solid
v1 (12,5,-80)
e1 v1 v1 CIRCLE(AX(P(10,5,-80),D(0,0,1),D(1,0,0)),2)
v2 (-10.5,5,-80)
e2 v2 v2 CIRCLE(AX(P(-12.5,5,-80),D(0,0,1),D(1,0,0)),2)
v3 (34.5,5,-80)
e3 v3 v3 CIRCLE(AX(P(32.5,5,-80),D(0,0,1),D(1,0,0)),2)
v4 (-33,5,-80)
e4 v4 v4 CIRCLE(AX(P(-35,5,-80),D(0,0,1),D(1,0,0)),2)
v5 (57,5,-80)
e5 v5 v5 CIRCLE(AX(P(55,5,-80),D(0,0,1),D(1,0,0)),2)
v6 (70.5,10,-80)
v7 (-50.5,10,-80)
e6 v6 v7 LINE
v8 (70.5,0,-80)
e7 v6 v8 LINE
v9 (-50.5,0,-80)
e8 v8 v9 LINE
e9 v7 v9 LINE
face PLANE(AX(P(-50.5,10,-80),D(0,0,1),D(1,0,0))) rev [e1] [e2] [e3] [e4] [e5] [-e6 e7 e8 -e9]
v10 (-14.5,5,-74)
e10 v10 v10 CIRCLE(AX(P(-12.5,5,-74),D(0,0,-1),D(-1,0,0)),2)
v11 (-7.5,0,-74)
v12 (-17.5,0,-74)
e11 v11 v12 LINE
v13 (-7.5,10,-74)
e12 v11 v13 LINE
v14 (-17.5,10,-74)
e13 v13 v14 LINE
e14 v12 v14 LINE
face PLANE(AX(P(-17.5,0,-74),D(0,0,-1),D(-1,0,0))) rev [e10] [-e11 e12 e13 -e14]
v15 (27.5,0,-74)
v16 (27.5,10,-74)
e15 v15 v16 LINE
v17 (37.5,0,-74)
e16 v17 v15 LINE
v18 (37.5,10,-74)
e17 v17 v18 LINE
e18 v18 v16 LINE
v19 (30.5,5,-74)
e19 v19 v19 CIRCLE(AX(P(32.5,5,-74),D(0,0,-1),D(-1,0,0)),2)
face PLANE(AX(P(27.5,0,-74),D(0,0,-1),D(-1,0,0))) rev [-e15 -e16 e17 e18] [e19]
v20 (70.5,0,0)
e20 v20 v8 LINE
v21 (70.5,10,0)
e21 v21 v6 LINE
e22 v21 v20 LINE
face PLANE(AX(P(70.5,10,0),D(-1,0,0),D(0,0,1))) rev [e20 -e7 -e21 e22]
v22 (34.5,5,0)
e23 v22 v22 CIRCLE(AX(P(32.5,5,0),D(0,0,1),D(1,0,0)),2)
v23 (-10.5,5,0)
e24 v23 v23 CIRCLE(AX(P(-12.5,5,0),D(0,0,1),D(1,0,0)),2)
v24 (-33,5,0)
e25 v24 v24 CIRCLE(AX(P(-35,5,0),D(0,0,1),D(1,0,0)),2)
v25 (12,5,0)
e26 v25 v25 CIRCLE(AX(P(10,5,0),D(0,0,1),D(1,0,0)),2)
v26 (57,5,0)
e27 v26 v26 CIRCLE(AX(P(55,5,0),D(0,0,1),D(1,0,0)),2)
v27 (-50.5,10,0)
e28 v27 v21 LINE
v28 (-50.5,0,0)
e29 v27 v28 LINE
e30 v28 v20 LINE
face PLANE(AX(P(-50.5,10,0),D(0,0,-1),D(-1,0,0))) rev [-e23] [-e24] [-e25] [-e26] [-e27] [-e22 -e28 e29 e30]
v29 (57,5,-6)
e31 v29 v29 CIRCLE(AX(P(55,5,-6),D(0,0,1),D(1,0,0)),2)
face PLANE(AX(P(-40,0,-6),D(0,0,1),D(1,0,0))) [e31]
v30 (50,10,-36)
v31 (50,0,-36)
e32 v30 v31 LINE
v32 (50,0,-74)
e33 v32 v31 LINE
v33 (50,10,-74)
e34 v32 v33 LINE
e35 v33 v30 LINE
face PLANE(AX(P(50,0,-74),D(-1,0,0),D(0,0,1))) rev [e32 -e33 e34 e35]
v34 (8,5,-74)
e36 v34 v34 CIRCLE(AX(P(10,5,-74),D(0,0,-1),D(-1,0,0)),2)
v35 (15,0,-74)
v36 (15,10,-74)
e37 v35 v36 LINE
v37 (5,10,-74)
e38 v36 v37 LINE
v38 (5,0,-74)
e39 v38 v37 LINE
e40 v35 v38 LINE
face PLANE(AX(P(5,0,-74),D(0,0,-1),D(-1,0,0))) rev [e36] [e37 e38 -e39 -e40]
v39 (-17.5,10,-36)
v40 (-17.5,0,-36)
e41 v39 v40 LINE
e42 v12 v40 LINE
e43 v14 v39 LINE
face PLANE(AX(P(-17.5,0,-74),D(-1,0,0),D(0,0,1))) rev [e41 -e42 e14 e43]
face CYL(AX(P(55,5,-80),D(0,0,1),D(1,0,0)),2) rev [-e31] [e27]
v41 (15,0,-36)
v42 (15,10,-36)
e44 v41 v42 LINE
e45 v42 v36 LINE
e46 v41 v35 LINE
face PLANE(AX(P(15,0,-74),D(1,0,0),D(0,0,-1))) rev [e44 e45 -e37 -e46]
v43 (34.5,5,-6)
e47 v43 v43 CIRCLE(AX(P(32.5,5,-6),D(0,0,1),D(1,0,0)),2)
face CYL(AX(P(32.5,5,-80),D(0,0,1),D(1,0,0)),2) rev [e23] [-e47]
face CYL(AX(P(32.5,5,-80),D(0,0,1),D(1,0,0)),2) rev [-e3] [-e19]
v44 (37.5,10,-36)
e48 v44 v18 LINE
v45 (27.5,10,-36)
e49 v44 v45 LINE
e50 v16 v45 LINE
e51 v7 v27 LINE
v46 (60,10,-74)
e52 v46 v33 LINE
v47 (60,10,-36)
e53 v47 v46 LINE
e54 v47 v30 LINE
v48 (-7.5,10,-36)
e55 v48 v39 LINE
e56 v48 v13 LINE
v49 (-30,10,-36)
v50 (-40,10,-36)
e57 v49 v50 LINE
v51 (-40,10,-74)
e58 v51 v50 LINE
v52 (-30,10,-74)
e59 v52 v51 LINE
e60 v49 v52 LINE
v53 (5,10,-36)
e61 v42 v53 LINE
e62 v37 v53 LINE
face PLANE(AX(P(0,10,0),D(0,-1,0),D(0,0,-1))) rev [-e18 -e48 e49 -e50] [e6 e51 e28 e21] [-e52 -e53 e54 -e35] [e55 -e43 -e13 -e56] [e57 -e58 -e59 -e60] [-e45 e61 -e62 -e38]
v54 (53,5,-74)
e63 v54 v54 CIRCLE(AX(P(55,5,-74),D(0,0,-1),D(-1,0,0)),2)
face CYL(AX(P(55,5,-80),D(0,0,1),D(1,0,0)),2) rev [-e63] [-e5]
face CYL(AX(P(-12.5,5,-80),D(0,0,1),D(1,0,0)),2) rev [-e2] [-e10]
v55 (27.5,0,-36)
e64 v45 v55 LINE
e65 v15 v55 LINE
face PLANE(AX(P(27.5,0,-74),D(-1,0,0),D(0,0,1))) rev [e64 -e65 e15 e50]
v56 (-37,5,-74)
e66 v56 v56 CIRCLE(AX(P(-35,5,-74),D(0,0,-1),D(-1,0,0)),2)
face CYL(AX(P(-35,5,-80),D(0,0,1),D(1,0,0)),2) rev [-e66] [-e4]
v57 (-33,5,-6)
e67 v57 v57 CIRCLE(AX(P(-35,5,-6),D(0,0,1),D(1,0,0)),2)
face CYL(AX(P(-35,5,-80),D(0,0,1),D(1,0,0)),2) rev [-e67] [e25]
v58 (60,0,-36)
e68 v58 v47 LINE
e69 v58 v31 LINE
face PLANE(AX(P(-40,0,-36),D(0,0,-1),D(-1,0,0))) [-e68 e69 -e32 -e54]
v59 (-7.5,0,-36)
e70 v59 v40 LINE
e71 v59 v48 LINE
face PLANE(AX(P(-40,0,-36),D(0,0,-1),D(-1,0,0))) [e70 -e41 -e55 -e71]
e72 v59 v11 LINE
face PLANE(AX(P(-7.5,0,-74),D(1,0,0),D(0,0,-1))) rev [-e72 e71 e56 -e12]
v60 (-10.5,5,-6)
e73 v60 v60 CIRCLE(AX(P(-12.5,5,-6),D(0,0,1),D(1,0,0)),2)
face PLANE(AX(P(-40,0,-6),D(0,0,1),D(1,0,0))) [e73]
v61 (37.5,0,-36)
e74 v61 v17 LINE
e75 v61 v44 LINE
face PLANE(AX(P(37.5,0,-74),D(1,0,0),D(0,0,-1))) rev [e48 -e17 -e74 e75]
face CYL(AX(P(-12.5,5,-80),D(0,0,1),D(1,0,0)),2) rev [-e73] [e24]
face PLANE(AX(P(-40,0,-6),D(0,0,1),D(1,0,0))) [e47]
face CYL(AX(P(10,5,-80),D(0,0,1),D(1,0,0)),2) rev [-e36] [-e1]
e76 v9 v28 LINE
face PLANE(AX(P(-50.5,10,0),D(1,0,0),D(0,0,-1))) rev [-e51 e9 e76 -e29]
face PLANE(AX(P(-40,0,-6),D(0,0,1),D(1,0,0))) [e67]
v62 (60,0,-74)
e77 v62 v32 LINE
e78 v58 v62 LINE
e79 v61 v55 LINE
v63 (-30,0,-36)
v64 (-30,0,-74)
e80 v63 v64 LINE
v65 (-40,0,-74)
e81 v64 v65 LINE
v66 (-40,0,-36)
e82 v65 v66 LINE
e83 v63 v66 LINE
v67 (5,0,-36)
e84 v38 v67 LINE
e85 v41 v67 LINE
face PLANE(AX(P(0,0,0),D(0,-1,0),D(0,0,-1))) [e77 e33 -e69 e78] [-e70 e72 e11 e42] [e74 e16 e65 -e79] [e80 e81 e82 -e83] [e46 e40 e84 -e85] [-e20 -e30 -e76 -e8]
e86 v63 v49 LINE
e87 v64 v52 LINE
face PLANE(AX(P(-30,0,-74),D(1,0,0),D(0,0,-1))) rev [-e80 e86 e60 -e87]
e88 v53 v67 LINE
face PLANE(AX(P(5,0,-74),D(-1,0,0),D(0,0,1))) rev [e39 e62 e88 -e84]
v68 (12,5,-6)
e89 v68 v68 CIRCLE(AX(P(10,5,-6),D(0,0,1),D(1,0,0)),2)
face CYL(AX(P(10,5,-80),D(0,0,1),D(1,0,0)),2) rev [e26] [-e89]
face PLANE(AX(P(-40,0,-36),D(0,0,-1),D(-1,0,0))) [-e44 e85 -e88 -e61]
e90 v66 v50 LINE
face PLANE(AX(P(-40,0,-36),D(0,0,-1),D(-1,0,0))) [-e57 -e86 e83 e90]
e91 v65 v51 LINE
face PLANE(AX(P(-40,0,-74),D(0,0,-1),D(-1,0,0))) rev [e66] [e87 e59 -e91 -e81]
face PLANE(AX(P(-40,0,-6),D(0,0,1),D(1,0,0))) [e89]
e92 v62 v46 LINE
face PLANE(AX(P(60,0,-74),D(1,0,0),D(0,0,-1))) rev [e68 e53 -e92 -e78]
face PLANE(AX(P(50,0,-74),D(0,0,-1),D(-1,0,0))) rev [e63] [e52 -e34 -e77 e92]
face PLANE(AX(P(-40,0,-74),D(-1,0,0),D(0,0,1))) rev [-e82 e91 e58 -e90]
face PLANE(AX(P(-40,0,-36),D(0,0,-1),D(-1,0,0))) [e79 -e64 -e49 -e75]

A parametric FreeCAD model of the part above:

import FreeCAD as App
import Part
import Sketcher
from FreeCAD import Vector
Q = App.Units.Quantity


def add_polygon(sketch, points):
    """Adds a closed chain of lines whose ends are joined by coincident constraints."""
    first, n = sketch.GeometryCount, len(points)
    for a, b in zip(points, points[1:] + points[:1]):
        sketch.addGeometry(Part.LineSegment(App.Vector(*a, 0), App.Vector(*b, 0)), False)
    for i in range(n):
        sketch.addConstraint(Sketcher.Constraint("Coincident", first + i, 2, first + (i + 1) % n, 1))

doc = App.newDocument("Part")
params = doc.addObject("Spreadsheet::Sheet", "Params")
for row, (alias, value) in enumerate([
    ("sketch1_width", "121 mm"),
    ("sketch1_height", "80 mm"),
    ("pad1_length", "10 mm"),
    ("sketch2_width", "10 mm"),
    ("sketch2_height", "68 mm"),
    ("pocket1_length", "10 mm"),
    ("sketch3_diameter", "4 mm"),
    ("sketch4_width", "100 mm"),
    ("sketch4_height", "30 mm"),
    ("pad2_length", "10 mm"),
], start=1):
    params.set(f"A{row}", alias)
    params.set(f"B{row}", "=" + value)
    params.setAlias(f"B{row}", alias)

body = doc.addObject("PartDesign::Body", "Body")

sketch1 = body.newObject("Sketcher::SketchObject", "Sketch")
sketch1.AttachmentSupport = (doc.getObject("XZ_Plane"), [""])
sketch1.MapMode = "FlatFace"
add_polygon(sketch1, [(-50, -80), (-50, 0), (70, 0), (70, -80)])
sketch1.addConstraint([
    Sketcher.Constraint("Vertical", 0),
    Sketcher.Constraint("Horizontal", 1),
    Sketcher.Constraint("Vertical", 2),
    Sketcher.Constraint("Horizontal", 3),
    Sketcher.Constraint("PointOnObject", 0, 2, -1),
    Sketcher.Constraint("DistanceX", 1, 1, 1, 2, Q("121 mm")),
    Sketcher.Constraint("DistanceY", 0, 1, 0, 2, Q("80 mm")),
    Sketcher.Constraint("DistanceX", 0, 2, -1, 1, Q("50.5 mm")),
])
sketch1.setExpression("Constraints[9]", "Params.sketch1_width")
sketch1.setExpression("Constraints[10]", "Params.sketch1_height")
pad1 = body.newObject("PartDesign::Pad", "Pad")
pad1.Profile = sketch1
pad1.setExpression("Length", "Params.pad1_length")
pad1.Reversed = True

sketch2 = body.newObject("Sketcher::SketchObject", "Sketch001")
sketch2.AttachmentSupport = (doc.getObject("XZ_Plane"), [""])
sketch2.MapMode = "FlatFace"
sketch2.AttachmentOffset = App.Placement(Vector(0, 0, -10), App.Rotation())
add_polygon(sketch2, [(-40, -74), (-40, -6), (-30, -6), (-30, -74)])
add_polygon(sketch2, [(-18, -74), (-18, -6), (-8, -6), (-8, -74)])
add_polygon(sketch2, [(5, -74), (5, -6), (15, -6), (15, -74)])
add_polygon(sketch2, [(28, -74), (28, -6), (38, -6), (38, -74)])
add_polygon(sketch2, [(50, -74), (50, -6), (60, -6), (60, -74)])
sketch2.addConstraint([
    Sketcher.Constraint("Vertical", 0),
    Sketcher.Constraint("Horizontal", 1),
    Sketcher.Constraint("Vertical", 2),
    Sketcher.Constraint("Horizontal", 3),
    Sketcher.Constraint("Vertical", 4),
    Sketcher.Constraint("Horizontal", 5),
    Sketcher.Constraint("Vertical", 6),
    Sketcher.Constraint("Horizontal", 7),
    Sketcher.Constraint("Vertical", 8),
    Sketcher.Constraint("Horizontal", 9),
    Sketcher.Constraint("Vertical", 10),
    Sketcher.Constraint("Horizontal", 11),
    Sketcher.Constraint("Vertical", 12),
    Sketcher.Constraint("Horizontal", 13),
    Sketcher.Constraint("Vertical", 14),
    Sketcher.Constraint("Horizontal", 15),
    Sketcher.Constraint("Vertical", 16),
    Sketcher.Constraint("Horizontal", 17),
    Sketcher.Constraint("Vertical", 18),
    Sketcher.Constraint("Horizontal", 19),
    Sketcher.Constraint("Horizontal", 1, 2, 4, 2),
    Sketcher.Constraint("Horizontal", 3, 2, 6, 2),
    Sketcher.Constraint("Horizontal", 5, 2, 8, 2),
    Sketcher.Constraint("Horizontal", 7, 2, 10, 2),
    Sketcher.Constraint("Horizontal", 9, 2, 12, 2),
    Sketcher.Constraint("Horizontal", 11, 2, 14, 2),
    Sketcher.Constraint("Horizontal", 13, 2, 16, 2),
    Sketcher.Constraint("Horizontal", 15, 2, 18, 2),
    Sketcher.Constraint("Equal", 3, 5),
    Sketcher.Constraint("Equal", 7, 9),
    Sketcher.Constraint("Equal", 11, 13),
    Sketcher.Constraint("Equal", 15, 17),
    Sketcher.Constraint("DistanceX", 1, 1, 1, 2, Q("10 mm")),
    Sketcher.Constraint("DistanceY", 0, 1, 0, 2, Q("68 mm")),
    Sketcher.Constraint("DistanceX", 0, 2, -1, 1, Q("40 mm")),
    Sketcher.Constraint("DistanceY", 0, 2, -1, 1, Q("6 mm")),
    Sketcher.Constraint("DistanceX", -1, 1, 8, 2, Q("5 mm")),
    Sketcher.Constraint("DistanceX", -1, 1, 16, 2, Q("50 mm")),
    Sketcher.Constraint("DistanceX", 5, 2, 12, 2, Q("35 mm")),
    Sketcher.Constraint("DistanceX", 4, 2, -1, 1, Q("17.5 mm")),
])
sketch2.setExpression("Constraints[52]", "Params.sketch2_width")
sketch2.setExpression("Constraints[53]", "Params.sketch2_height")
pocket1 = body.newObject("PartDesign::Pocket", "Pocket")
pocket1.Profile = sketch2
pocket1.setExpression("Length", "Params.pocket1_length")
pocket1.Reversed = True

sketch3 = body.newObject("Sketcher::SketchObject", "Sketch002")
sketch3.AttachmentSupport = (doc.getObject("XY_Plane"), [""])
sketch3.MapMode = "FlatFace"
sketch3.addGeometry([
    Part.Circle(Vector(-35, 5, 0), Vector(0, 0, 1), 2),
    Part.Circle(Vector(-12.5, 5, 0), Vector(0, 0, 1), 2),
    Part.Circle(Vector(10, 5, 0), Vector(0, 0, 1), 2),
    Part.Circle(Vector(32.5, 5, 0), Vector(0, 0, 1), 2),
    Part.Circle(Vector(55, 5, 0), Vector(0, 0, 1), 2),
], False)
sketch3.addConstraint([
    Sketcher.Constraint("Equal", 0, 1),
    Sketcher.Constraint("Equal", 1, 2),
    Sketcher.Constraint("Equal", 2, 3),
    Sketcher.Constraint("Equal", 3, 4),
    Sketcher.Constraint("Horizontal", 0, 3, 1, 3),
    Sketcher.Constraint("Horizontal", 1, 3, 2, 3),
    Sketcher.Constraint("Horizontal", 2, 3, 3, 3),
    Sketcher.Constraint("Horizontal", 3, 3, 4, 3),
    Sketcher.Constraint("Diameter", 0, Q("4 mm")),
    Sketcher.Constraint("DistanceX", 0, 3, -1, 1, Q("35 mm")),
    Sketcher.Constraint("DistanceY", -1, 1, 0, 3, Q("5 mm")),
    Sketcher.Constraint("DistanceX", -1, 1, 2, 3, Q("10 mm")),
    Sketcher.Constraint("DistanceX", -1, 1, 4, 3, Q("55 mm")),
    Sketcher.Constraint("DistanceX", 1, 3, 3, 3, Q("45 mm")),
    Sketcher.Constraint("DistanceX", 1, 3, -1, 1, Q("12.5 mm")),
])
sketch3.setExpression("Constraints[8]", "Params.sketch3_diameter")
pocket2 = body.newObject("PartDesign::Pocket", "Pocket001")
pocket2.Profile = sketch3
pocket2.Type = "ThroughAll"

sketch4 = body.newObject("Sketcher::SketchObject", "Sketch003")
sketch4.AttachmentSupport = (doc.getObject("XZ_Plane"), [""])
sketch4.MapMode = "FlatFace"
sketch4.AttachmentOffset = App.Placement(Vector(0, 0, -10), App.Rotation())
add_polygon(sketch4, [(-40, -36), (-40, -6), (60, -6), (60, -36)])
sketch4.addConstraint([
    Sketcher.Constraint("Vertical", 0),
    Sketcher.Constraint("Horizontal", 1),
    Sketcher.Constraint("Vertical", 2),
    Sketcher.Constraint("Horizontal", 3),
    Sketcher.Constraint("DistanceX", 1, 1, 1, 2, Q("100 mm")),
    Sketcher.Constraint("DistanceY", 0, 1, 0, 2, Q("30 mm")),
    Sketcher.Constraint("DistanceX", 0, 2, -1, 1, Q("40 mm")),
    Sketcher.Constraint("DistanceY", 0, 2, -1, 1, Q("6 mm")),
])
sketch4.setExpression("Constraints[8]", "Params.sketch4_width")
sketch4.setExpression("Constraints[9]", "Params.sketch4_height")
pad2 = body.newObject("PartDesign::Pad", "Pad001")
pad2.Profile = sketch4
pad2.setExpression("Length", "Params.pad2_length")

doc.recompute()
